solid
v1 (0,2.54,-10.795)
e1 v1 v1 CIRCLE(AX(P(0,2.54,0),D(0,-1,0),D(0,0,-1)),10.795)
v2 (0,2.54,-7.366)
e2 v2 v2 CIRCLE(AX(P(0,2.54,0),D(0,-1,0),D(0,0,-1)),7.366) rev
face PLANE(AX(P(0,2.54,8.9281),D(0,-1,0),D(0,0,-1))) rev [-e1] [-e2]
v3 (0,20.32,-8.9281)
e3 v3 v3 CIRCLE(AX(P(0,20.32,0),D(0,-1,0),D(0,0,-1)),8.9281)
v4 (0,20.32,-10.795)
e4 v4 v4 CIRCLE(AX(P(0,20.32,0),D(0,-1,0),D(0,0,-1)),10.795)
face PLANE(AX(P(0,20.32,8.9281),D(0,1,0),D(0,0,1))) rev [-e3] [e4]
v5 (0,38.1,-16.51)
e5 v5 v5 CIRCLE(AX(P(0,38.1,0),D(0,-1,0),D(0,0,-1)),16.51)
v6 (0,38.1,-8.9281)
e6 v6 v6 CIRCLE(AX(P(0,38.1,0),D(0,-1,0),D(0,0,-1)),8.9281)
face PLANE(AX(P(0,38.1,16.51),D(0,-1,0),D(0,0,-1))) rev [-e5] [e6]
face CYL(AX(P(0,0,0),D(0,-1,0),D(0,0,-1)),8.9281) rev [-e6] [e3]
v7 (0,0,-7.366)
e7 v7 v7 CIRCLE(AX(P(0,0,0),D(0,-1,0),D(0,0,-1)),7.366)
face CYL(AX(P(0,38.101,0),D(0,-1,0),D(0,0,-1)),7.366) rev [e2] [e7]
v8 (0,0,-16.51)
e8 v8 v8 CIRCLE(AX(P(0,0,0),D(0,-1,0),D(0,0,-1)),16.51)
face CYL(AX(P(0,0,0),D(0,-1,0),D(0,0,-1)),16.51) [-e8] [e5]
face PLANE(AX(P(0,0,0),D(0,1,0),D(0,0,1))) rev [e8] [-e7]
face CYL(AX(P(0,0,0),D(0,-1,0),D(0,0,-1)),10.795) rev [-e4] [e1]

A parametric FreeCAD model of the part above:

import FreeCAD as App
import Part
import Sketcher
Q = App.Units.Quantity

doc = App.newDocument("Part")
params = doc.addObject("Spreadsheet::Sheet", "Params")
for row, (alias, value) in enumerate([
    ("sketch1_width", "0.1 in"),
    ("sketch1_width2", "0.7 in"),
    ("sketch1_height", "0.65 in"),
    ("sketch1_height2", "0.425 in"),
    ("revolution_angle", "360 deg"),
    ("sketch2_diameter", "0.58 in"),
], start=1):
    params.set(f"A{row}", alias)
    params.set(f"B{row}", "=" + value)
    params.setAlias(f"B{row}", alias)

body = doc.addObject("PartDesign::Body", "Body")

sketch1 = body.newObject("Sketcher::SketchObject", "Sketch")
sketch1.AttachmentSupport = (doc.getObject("YZ_Plane"), [""])
sketch1.MapMode = "FlatFace"
sketch1.addGeometry(Part.LineSegment(App.Vector(0, 16.5, 0), App.Vector(0, 0, 0)), False)
sketch1.addGeometry(Part.LineSegment(App.Vector(0, 0, 0), App.Vector(2.5, 0, 0)), False)
sketch1.addGeometry(Part.LineSegment(App.Vector(2.5, 0, 0), App.Vector(2.5, 10.8, 0)), False)
sketch1.addGeometry(Part.LineSegment(App.Vector(2.5, 10.8, 0), App.Vector(20.3, 10.8, 0)), False)
sketch1.addGeometry(Part.LineSegment(App.Vector(20.3, 10.8, 0), App.Vector(20.3, 8.9, 0)), False)
sketch1.addGeometry(Part.LineSegment(App.Vector(20.3, 8.9, 0), App.Vector(38.1, 8.9, 0)), False)
sketch1.addGeometry(Part.LineSegment(App.Vector(38.1, 8.9, 0), App.Vector(38.1, 16.5, 0)), False)
sketch1.addGeometry(Part.LineSegment(App.Vector(38.1, 16.5, 0), App.Vector(0, 16.5, 0)), False)
sketch1.addConstraint(Sketcher.Constraint("Coincident", 0, 2, 1, 1))
sketch1.addConstraint(Sketcher.Constraint("Coincident", 1, 2, 2, 1))
sketch1.addConstraint(Sketcher.Constraint("Coincident", 2, 2, 3, 1))
sketch1.addConstraint(Sketcher.Constraint("Coincident", 3, 2, 4, 1))
sketch1.addConstraint(Sketcher.Constraint("Coincident", 4, 2, 5, 1))
sketch1.addConstraint(Sketcher.Constraint("Coincident", 5, 2, 6, 1))
sketch1.addConstraint(Sketcher.Constraint("Coincident", 6, 2, 7, 1))
sketch1.addConstraint(Sketcher.Constraint("Coincident", 7, 2, 0, 1))
sketch1.addConstraint(Sketcher.Constraint("Vertical", 0))
sketch1.addConstraint(Sketcher.Constraint("Horizontal", 1))
sketch1.addConstraint(Sketcher.Constraint("Vertical", 2))
sketch1.addConstraint(Sketcher.Constraint("Horizontal", 3))
sketch1.addConstraint(Sketcher.Constraint("Vertical", 4))
sketch1.addConstraint(Sketcher.Constraint("Horizontal", 5))
sketch1.addConstraint(Sketcher.Constraint("Vertical", 6))
sketch1.addConstraint(Sketcher.Constraint("Horizontal", 7))
sketch1.addConstraint(Sketcher.Constraint("Coincident", 0, 2, -1, 1))
sketch1.addConstraint(Sketcher.Constraint("Equal", 3, 5))
sketch1.addConstraint(Sketcher.Constraint("DistanceX", 1, 1, 1, 2, Q("0.1 in")))
sketch1.addConstraint(Sketcher.Constraint("DistanceX", 3, 1, 3, 2, Q("0.7 in")))
sketch1.addConstraint(Sketcher.Constraint("DistanceY", 0, 2, 0, 1, Q("0.65 in")))
sketch1.addConstraint(Sketcher.Constraint("DistanceY", 2, 1, 2, 2, Q("0.425 in")))
sketch1.addConstraint(Sketcher.Constraint("DistanceY", 4, 2, 4, 1, Q("0.0735 in")))
sketch1.setExpression("Constraints[18]", "Params.sketch1_width")
sketch1.setExpression("Constraints[19]", "Params.sketch1_width2")
sketch1.setExpression("Constraints[20]", "Params.sketch1_height")
sketch1.setExpression("Constraints[21]", "Params.sketch1_height2")
revolution = body.newObject("PartDesign::Revolution", "Revolution")
revolution.Profile = sketch1
revolution.ReferenceAxis = (sketch1, ["H_Axis"])
revolution.setExpression("Angle", "Params.revolution_angle")

sketch2 = body.newObject("Sketcher::SketchObject", "Sketch001")
sketch2.AttachmentSupport = (doc.getObject("XZ_Plane"), [""])
sketch2.MapMode = "FlatFace"
sketch2.addGeometry(Part.Circle(App.Vector(0, 0, 0), App.Vector(0, 0, 1), 7), False)
sketch2.addConstraint(Sketcher.Constraint("Coincident", 0, 3, -1, 1))
sketch2.addConstraint(Sketcher.Constraint("Diameter", 0, Q("0.58 in")))
sketch2.setExpression("Constraints[1]", "Params.sketch2_diameter")
pocket1 = body.newObject("PartDesign::Pocket", "Pocket")
pocket1.Profile = sketch2
pocket1.Type = "UpToFirst"

doc.recompute()
